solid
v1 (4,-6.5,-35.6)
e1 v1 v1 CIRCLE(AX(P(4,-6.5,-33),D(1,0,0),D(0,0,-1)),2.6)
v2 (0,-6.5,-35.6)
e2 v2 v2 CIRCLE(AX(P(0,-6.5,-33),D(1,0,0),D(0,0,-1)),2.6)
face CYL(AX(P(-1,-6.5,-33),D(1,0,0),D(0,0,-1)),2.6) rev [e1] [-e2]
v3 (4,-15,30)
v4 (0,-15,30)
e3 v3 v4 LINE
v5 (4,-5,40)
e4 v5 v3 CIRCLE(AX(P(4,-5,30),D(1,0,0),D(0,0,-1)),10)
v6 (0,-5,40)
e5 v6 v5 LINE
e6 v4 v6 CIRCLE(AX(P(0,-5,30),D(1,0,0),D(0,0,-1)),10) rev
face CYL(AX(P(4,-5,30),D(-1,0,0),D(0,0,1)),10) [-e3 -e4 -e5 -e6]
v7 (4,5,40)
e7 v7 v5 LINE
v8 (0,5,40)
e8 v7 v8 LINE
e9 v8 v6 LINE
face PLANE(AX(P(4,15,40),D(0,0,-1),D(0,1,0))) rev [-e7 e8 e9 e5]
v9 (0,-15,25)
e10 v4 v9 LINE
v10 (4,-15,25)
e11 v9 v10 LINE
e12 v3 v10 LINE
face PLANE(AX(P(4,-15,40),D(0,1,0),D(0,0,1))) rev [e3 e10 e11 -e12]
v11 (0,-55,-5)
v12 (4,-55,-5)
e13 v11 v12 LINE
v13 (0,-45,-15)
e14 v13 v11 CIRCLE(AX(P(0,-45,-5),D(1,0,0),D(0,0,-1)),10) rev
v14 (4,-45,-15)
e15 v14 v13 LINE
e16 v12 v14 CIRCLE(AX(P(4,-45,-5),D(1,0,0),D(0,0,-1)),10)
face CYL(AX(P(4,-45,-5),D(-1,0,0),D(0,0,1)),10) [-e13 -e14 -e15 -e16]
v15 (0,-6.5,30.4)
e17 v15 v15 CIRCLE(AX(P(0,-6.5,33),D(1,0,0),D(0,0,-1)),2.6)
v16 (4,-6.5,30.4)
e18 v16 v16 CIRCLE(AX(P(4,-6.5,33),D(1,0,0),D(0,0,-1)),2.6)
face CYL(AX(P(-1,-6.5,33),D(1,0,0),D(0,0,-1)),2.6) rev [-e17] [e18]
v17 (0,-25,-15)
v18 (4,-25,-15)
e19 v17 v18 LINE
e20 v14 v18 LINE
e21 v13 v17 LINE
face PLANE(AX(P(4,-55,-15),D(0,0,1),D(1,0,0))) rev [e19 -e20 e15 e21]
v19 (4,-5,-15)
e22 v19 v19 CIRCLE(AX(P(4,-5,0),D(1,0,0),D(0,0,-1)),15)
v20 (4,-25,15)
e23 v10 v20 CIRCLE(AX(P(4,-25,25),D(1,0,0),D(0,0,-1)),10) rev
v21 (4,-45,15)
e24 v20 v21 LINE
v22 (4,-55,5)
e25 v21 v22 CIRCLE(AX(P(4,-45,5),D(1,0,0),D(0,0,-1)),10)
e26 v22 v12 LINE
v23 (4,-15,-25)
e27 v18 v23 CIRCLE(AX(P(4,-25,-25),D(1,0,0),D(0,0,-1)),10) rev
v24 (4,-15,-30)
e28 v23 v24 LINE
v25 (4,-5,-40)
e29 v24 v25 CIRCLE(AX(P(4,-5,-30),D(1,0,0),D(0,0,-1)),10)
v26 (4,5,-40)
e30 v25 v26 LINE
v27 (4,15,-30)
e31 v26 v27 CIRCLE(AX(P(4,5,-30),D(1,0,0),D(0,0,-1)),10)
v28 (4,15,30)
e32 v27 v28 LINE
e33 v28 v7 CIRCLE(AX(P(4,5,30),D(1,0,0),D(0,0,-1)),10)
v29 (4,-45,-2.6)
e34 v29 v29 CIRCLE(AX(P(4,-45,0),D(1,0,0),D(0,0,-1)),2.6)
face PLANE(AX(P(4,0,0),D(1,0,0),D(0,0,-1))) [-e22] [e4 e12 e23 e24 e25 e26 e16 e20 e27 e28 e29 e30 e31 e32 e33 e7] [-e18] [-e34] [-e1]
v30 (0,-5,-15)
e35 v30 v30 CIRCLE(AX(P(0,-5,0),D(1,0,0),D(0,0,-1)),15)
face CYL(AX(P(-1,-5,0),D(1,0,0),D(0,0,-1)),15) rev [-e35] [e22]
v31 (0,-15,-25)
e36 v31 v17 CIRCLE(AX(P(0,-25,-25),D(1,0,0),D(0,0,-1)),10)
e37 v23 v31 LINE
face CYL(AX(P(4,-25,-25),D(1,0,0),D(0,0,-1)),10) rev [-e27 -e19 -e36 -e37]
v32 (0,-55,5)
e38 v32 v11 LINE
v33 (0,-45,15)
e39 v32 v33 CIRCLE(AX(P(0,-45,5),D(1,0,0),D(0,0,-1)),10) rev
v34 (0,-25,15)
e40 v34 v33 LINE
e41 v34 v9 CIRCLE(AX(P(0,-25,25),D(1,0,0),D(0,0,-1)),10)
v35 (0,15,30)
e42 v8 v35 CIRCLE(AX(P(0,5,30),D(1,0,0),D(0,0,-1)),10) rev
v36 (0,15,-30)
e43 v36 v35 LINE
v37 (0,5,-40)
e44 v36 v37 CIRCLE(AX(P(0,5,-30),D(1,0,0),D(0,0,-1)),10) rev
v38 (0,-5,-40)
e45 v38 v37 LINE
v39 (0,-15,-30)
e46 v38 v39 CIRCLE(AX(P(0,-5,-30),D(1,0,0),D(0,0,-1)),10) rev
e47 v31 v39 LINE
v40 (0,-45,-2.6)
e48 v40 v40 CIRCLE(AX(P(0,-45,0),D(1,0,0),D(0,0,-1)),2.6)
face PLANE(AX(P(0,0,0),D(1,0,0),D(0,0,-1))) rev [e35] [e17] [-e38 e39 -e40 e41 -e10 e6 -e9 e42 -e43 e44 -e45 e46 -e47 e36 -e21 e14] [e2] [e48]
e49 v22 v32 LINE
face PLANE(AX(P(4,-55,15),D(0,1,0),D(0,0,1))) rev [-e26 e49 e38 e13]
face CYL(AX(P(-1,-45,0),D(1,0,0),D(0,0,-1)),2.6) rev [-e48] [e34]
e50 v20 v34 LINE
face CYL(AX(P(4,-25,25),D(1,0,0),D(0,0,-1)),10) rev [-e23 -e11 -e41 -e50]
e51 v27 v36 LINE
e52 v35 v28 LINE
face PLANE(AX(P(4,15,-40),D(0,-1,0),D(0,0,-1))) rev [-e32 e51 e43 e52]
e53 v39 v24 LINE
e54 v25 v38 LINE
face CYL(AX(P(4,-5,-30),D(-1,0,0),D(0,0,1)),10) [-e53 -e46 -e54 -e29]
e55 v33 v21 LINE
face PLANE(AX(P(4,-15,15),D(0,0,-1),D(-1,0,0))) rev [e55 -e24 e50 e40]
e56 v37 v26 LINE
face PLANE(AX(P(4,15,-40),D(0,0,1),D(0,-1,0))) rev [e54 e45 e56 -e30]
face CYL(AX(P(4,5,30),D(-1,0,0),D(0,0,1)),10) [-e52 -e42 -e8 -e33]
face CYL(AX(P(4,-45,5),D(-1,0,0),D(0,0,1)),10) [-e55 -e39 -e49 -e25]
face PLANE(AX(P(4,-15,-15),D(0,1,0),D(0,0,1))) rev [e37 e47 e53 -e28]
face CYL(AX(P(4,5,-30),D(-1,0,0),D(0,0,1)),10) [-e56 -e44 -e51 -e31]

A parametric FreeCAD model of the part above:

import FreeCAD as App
import Part
import Sketcher
from FreeCAD import Vector


def edges_at(feature, points):
    """Names of the edges that pass closest to the given points."""
    edges = feature.Shape.Edges
    near = lambda p: min(range(len(edges)), key=lambda i: edges[i].distToShape(Part.Vertex(*p))[0])
    return sorted({f"Edge{near(p) + 1}" for p in points})

doc = App.newDocument("Part")
body = doc.addObject("PartDesign::Body", "Body")

# Sketch on YZ plane
sketch1 = body.newObject("Sketcher::SketchObject", "Sketch")
sketch1.AttachmentSupport = (doc.getObject("YZ_Plane"), [""])
sketch1.MapMode = "FlatFace"
sketch1.addGeometry([
    Part.LineSegment(Vector(-15, 40, 0), Vector(-15, 15, 0)),  # 0
    Part.LineSegment(Vector(-15, 15, 0), Vector(-55, 15, 0)),  # 1
    Part.LineSegment(Vector(-55, 15, 0), Vector(-55, -15, 0)),  # 2
    Part.LineSegment(Vector(-55, -15, 0), Vector(-15, -15, 0)),  # 3
    Part.LineSegment(Vector(-15, -15, 0), Vector(-15, -40, 0)),  # 4
    Part.LineSegment(Vector(-15, -40, 0), Vector(15, -40, 0)),  # 5
    Part.LineSegment(Vector(15, -40, 0), Vector(15, 40, 0)),  # 6
    Part.LineSegment(Vector(15, 40, 0), Vector(-15, 40, 0)),  # 7
], False)
sketch1.addConstraint([
    Sketcher.Constraint("Coincident", 0, 2, 1, 1),
    Sketcher.Constraint("Coincident", 1, 2, 2, 1),
    Sketcher.Constraint("Coincident", 2, 2, 3, 1),
    Sketcher.Constraint("Coincident", 3, 2, 4, 1),
    Sketcher.Constraint("Coincident", 4, 2, 5, 1),
    Sketcher.Constraint("Coincident", 5, 2, 6, 1),
    Sketcher.Constraint("Coincident", 6, 2, 7, 1),
    Sketcher.Constraint("Coincident", 7, 2, 0, 1),
    Sketcher.Constraint("Vertical", 0),
    Sketcher.Constraint("Horizontal", 1),
    Sketcher.Constraint("Vertical", 2),
    Sketcher.Constraint("Horizontal", 3),
    Sketcher.Constraint("Vertical", 4),
    Sketcher.Constraint("Horizontal", 5),
    Sketcher.Constraint("Vertical", 6),
    Sketcher.Constraint("Horizontal", 7),
    Sketcher.Constraint("Symmetric", 4, 2, 6, 2, -1, 1),
    Sketcher.Constraint("Symmetric", 0, 2, 3, 2, -1),
    Sketcher.Constraint("Equal", 7, 2),
    Sketcher.Constraint("DistanceX", 1, 2, 1, 1, 40.0),
    Sketcher.Constraint("DistanceX", 5, 1, 5, 2, 30.0),
    Sketcher.Constraint("DistanceY", 0, 2, 0, 1, 25.0),
])
pad1 = body.newObject("PartDesign::Pad", "Pad")
pad1.Profile = sketch1
pad1.Length = 4

# Sketch on YZ plane
sketch2 = body.newObject("Sketcher::SketchObject", "Sketch001")
sketch2.AttachmentSupport = (doc.getObject("YZ_Plane"), [""])
sketch2.MapMode = "FlatFace"
sketch2.AttachmentOffset = App.Placement(Vector(0, 0, 4), App.Rotation())
sketch2.addGeometry([
    Part.Circle(Vector(-5, 0, 0), Vector(0, 0, 1), 15),
    Part.Circle(Vector(-45, 0, 0), Vector(0, 0, 1), 2.6),
    Part.Circle(Vector(-6.5, 33, 0), Vector(0, 0, 1), 2.6),
    Part.Circle(Vector(-6.5, -33, 0), Vector(0, 0, 1), 2.6),
], False)
sketch2.addConstraint([
    Sketcher.Constraint("Equal", 1, 2),
    Sketcher.Constraint("Equal", 2, 3),
    Sketcher.Constraint("Symmetric", 2, 3, 3, 3, -1),
    Sketcher.Constraint("PointOnObject", 0, 3, -1),
    Sketcher.Constraint("PointOnObject", 1, 3, -1),
    Sketcher.Constraint("Diameter", 0, 30.0),
    Sketcher.Constraint("Diameter", 1, 5.2),
    Sketcher.Constraint("DistanceX", 0, 3, -1, 1, 5.0),
    Sketcher.Constraint("DistanceX", 1, 3, -1, 1, 45.0),
    Sketcher.Constraint("DistanceY", -1, 1, 2, 3, 33.0),
    Sketcher.Constraint("DistanceX", 2, 3, -1, 1, 6.5),
])
pocket1 = body.newObject("PartDesign::Pocket", "Pocket")
pocket1.Profile = sketch2
pocket1.Length = 5
doc.recompute()

fillet = body.newObject("PartDesign::Fillet", "Fillet")
fillet.Base = (pocket1, edges_at(pocket1, [
    (2, 15, 40),
    (2, 15, -40),
    (2, -15, -40),
    (2, -15, -15),
    (2, -55, -15),
    (2, -55, 15),
    (2, -15, 15),
    (2, -15, 40),
]))
fillet.Radius = 10

doc.recompute()
